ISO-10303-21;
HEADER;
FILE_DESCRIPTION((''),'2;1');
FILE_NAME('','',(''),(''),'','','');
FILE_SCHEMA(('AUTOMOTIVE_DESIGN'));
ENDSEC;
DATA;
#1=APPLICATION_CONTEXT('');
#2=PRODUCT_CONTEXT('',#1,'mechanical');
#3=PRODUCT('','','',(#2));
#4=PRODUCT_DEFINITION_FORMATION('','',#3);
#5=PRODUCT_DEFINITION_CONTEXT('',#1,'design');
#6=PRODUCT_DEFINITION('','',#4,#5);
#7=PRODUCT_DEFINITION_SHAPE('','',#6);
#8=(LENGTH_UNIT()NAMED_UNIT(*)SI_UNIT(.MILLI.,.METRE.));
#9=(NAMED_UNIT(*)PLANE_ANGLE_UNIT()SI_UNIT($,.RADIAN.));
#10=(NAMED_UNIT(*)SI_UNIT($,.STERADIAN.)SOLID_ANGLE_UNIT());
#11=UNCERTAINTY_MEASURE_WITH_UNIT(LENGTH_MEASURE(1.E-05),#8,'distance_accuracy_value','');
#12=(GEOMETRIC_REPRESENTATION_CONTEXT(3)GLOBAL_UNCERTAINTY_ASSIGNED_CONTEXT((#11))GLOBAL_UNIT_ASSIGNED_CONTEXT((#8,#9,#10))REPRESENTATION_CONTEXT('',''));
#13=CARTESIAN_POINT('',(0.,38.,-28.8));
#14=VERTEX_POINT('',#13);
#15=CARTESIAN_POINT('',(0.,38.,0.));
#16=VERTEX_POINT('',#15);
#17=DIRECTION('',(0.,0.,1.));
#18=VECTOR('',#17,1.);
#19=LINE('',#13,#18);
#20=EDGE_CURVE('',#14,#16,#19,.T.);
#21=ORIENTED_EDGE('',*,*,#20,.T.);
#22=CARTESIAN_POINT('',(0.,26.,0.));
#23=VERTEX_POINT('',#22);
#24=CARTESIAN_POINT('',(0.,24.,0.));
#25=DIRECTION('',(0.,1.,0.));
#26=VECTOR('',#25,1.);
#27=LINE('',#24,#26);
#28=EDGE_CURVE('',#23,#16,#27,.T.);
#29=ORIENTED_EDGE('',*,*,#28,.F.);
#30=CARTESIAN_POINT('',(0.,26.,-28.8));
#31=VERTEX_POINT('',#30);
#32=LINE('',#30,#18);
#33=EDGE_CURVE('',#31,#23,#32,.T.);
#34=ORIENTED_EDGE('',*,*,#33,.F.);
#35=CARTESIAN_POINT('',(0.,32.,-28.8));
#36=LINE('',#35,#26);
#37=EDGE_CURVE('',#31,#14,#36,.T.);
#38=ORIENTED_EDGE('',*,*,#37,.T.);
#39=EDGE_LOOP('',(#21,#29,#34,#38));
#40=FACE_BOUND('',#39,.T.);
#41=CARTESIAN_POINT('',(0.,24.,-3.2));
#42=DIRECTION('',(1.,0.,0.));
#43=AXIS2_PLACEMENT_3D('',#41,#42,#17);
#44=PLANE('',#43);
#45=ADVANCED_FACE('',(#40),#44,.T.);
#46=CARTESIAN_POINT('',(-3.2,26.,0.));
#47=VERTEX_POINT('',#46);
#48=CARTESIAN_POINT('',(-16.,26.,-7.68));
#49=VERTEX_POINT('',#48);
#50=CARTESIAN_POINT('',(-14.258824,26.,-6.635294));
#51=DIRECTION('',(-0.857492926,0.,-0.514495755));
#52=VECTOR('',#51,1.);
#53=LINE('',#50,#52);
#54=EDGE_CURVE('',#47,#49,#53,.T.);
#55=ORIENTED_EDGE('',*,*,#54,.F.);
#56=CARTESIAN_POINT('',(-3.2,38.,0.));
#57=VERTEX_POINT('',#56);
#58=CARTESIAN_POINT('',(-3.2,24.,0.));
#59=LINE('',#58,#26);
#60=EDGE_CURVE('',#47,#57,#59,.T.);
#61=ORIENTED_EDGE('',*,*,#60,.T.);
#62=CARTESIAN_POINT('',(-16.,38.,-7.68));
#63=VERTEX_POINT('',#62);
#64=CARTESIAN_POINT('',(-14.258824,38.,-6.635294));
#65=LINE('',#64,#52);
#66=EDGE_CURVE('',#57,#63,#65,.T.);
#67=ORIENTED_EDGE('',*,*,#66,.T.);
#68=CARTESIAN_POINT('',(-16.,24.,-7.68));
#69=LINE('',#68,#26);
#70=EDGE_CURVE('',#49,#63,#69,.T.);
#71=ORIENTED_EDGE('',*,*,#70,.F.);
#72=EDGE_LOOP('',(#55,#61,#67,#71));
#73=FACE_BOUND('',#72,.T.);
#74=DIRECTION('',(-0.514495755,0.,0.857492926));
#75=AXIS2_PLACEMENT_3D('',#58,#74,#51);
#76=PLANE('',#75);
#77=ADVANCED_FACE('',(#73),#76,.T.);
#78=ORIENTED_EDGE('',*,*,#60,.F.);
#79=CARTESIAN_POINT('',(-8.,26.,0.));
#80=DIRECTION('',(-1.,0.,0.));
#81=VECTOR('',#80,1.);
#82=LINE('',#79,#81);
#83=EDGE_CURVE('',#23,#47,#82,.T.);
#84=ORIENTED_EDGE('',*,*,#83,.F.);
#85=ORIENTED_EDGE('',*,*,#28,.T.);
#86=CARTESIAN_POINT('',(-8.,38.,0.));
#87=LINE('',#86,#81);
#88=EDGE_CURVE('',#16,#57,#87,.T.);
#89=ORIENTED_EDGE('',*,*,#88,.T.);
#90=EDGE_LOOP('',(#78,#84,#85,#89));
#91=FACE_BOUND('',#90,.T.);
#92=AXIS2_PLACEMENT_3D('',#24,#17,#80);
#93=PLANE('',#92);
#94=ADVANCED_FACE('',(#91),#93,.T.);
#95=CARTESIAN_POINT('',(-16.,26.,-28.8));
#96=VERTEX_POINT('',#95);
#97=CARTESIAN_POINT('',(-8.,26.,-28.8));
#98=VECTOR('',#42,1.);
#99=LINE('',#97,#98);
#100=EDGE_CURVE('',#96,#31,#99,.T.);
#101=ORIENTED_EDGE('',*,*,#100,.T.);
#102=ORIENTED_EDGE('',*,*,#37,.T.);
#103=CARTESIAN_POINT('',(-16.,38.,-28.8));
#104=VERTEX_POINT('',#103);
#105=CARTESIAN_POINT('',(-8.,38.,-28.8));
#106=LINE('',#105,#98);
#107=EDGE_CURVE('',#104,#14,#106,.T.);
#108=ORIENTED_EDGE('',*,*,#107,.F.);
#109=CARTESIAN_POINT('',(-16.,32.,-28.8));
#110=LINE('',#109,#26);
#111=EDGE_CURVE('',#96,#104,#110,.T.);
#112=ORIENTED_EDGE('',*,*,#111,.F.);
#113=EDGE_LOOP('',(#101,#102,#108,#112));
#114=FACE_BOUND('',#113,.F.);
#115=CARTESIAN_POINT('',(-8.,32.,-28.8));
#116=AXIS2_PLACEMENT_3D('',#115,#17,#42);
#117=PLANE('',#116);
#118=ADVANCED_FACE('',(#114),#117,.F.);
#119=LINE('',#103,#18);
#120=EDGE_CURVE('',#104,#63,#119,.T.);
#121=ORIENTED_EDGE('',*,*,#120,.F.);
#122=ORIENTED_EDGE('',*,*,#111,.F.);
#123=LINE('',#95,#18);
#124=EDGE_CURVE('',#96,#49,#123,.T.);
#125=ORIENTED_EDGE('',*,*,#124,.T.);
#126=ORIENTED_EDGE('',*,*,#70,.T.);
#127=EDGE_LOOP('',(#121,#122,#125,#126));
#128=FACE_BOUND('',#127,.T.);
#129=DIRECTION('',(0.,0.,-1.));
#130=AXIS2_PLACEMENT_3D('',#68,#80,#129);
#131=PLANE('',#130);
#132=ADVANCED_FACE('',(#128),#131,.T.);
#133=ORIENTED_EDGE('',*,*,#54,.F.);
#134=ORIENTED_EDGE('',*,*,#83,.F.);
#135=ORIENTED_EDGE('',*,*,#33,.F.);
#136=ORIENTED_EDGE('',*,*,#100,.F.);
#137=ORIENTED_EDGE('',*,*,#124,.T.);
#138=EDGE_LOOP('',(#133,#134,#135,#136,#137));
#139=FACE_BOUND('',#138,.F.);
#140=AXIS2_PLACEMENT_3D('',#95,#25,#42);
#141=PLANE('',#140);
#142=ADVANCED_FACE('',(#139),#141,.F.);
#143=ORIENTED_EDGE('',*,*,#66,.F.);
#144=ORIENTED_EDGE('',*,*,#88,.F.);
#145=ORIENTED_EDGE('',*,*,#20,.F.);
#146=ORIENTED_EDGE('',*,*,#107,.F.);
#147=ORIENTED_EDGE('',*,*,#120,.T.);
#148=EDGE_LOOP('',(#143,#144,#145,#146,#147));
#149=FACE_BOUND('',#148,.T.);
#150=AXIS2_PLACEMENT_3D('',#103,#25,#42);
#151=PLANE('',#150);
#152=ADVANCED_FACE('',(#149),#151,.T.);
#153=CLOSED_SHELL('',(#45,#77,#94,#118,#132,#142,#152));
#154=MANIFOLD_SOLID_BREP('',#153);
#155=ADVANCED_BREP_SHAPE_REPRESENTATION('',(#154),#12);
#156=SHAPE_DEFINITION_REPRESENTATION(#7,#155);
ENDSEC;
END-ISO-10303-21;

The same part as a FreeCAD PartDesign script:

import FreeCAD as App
import Part
import Sketcher


def add_polygon(sketch, points):
    """Adds a closed chain of lines whose ends are joined by coincident constraints."""
    first, n = sketch.GeometryCount, len(points)
    for a, b in zip(points, points[1:] + points[:1]):
        sketch.addGeometry(Part.LineSegment(App.Vector(*a, 0), App.Vector(*b, 0)), False)
    for i in range(n):
        sketch.addConstraint(Sketcher.Constraint("Coincident", first + i, 2, first + (i + 1) % n, 1))

doc = App.newDocument("Part")
body = doc.addObject("PartDesign::Body", "Body")

sketch1 = doc.addObject("Sketcher::SketchObject", "Sketch")
body.addObject(sketch1)
sketch1.AttachmentSupport = (doc.XY_Plane, [""])
sketch1.MapMode = "FlatFace"
sketch1.AttachmentOffset = App.Placement(App.Vector(0, 0, -28.8), App.Rotation())
add_polygon(sketch1, [(-16, 40), (-16, 24), (0, 24), (0, 40)])
sketch1.addConstraint([
    Sketcher.Constraint("Vertical", 0),
    Sketcher.Constraint("Horizontal", 1),
    Sketcher.Constraint("Vertical", 2),
    Sketcher.Constraint("Horizontal", 3),
    Sketcher.Constraint("PointOnObject", 1, 2, -2),
    Sketcher.Constraint("Equal", 3, 0),
    Sketcher.Constraint("DistanceX", 1, 1, 1, 2, 16.0),
    Sketcher.Constraint("DistanceY", -1, 1, 0, 2, 24.0),
])
pad1 = doc.addObject("PartDesign::Pad", "Pad")
body.addObject(pad1)
pad1.Profile = sketch1
pad1.Length = 28.8

sketch2 = doc.addObject("Sketcher::SketchObject", "Sketch001")
body.addObject(sketch2)
sketch2.AttachmentSupport = (doc.XZ_Plane, [""])
sketch2.MapMode = "FlatFace"
sketch2.AttachmentOffset = App.Placement(App.Vector(0, 0, -24), App.Rotation())
add_polygon(sketch2, [(-16, -10), (0, 0), (-16, 0)])
sketch2.addConstraint([
    Sketcher.Constraint("Horizontal", 1),
    Sketcher.Constraint("Vertical", 2),
    Sketcher.Constraint("Coincident", 0, 2, -1, 1),
    Sketcher.Constraint("DistanceX", 1, 2, 1, 1, 16.0),
    Sketcher.Constraint("DistanceY", 2, 2, 2, 1, 9.6),
])
pocket1 = doc.addObject("PartDesign::Pocket", "Pocket")
body.addObject(pocket1)
pocket1.Profile = sketch2
pocket1.Length = 16

sketch3 = doc.addObject("Sketcher::SketchObject", "Sketch002")
body.addObject(sketch3)
sketch3.AttachmentSupport = (doc.XZ_Plane, [""])
sketch3.MapMode = "FlatFace"
sketch3.AttachmentOffset = App.Placement(App.Vector(0, 0, -24), App.Rotation())
add_polygon(sketch3, [(0, 0), (-3.2, 0), (-16, -7.7), (-16, -10.9), (-3.2, -3.2), (0, -3.2)])
sketch3.addConstraint([
    Sketcher.Constraint("Horizontal", 0),
    Sketcher.Constraint("Vertical", 2),
    Sketcher.Constraint("Horizontal", 4),
    Sketcher.Constraint("Vertical", 5),
    Sketcher.Constraint("Coincident", 5, 2, -1, 1),
    Sketcher.Constraint("Parallel", 1, 3),
    Sketcher.Constraint("Vertical", 0, 2, 3, 2),
    Sketcher.Constraint("Equal", 4, 2),
    Sketcher.Constraint("DistanceX", 0, 2, 0, 1, 3.2),
    Sketcher.Constraint("DistanceX", 1, 2, -1, 1, 16.0),
    Sketcher.Constraint("DistanceY", 1, 2, -1, 1, 7.68),
])
pocket2 = doc.addObject("PartDesign::Pocket", "Pocket001")
body.addObject(pocket2)
pocket2.Profile = sketch3
pocket2.Length = 16

sketch4 = doc.addObject("Sketcher::SketchObject", "Sketch003")
body.addObject(sketch4)
sketch4.AttachmentSupport = (doc.XZ_Plane, [""])
sketch4.MapMode = "FlatFace"
sketch4.AttachmentOffset = App.Placement(App.Vector(0, 0, -24), App.Rotation())
add_polygon(sketch4, [(0, 0), (-3.2, 0), (-16, -7.7), (-16, -10.9), (-3.2, -3.2), (0, -3.2)])
sketch4.addConstraint([
    Sketcher.Constraint("Horizontal", 0),
    Sketcher.Constraint("Vertical", 2),
    Sketcher.Constraint("Horizontal", 4),
    Sketcher.Constraint("Vertical", 5),
    Sketcher.Constraint("Coincident", 5, 2, -1, 1),
    Sketcher.Constraint("Parallel", 1, 3),
    Sketcher.Constraint("Vertical", 0, 2, 3, 2),
    Sketcher.Constraint("Equal", 4, 2),
    Sketcher.Constraint("DistanceX", 0, 2, 0, 1, 3.2),
    Sketcher.Constraint("DistanceX", 1, 2, -1, 1, 16.0),
    Sketcher.Constraint("DistanceY", 1, 2, -1, 1, 7.68),
])
pad2 = doc.addObject("PartDesign::Pad", "Pad001")
body.addObject(pad2)
pad2.Profile = sketch4
pad2.Length = 16
pad2.Reversed = True

sketch5 = doc.addObject("Sketcher::SketchObject", "Sketch004")
body.addObject(sketch5)
sketch5.AttachmentSupport = (doc.XY_Plane, [""])
sketch5.MapMode = "FlatFace"
sketch5.AttachmentOffset = App.Placement(App.Vector(0, 0, -28.8), App.Rotation())
add_polygon(sketch5, [(-16, 24), (-16, 26), (0, 26), (0, 24)])
add_polygon(sketch5, [(-16, 38), (-16, 40), (0, 40), (0, 38)])
sketch5.addConstraint([
    Sketcher.Constraint("Vertical", 0),
    Sketcher.Constraint("Horizontal", 1),
    Sketcher.Constraint("Vertical", 2),
    Sketcher.Constraint("Horizontal", 3),
    Sketcher.Constraint("Vertical", 4),
    Sketcher.Constraint("Horizontal", 5),
    Sketcher.Constraint("Vertical", 6),
    Sketcher.Constraint("Horizontal", 7),
    Sketcher.Constraint("PointOnObject", 1, 2, -2),
    Sketcher.Constraint("PointOnObject", 5, 2, -2),
    Sketcher.Constraint("Vertical", 3, 2, 4, 2),
    Sketcher.Constraint("Equal", 2, 4),
    Sketcher.Constraint("DistanceX", 1, 1, 1, 2, 16.0),
    Sketcher.Constraint("DistanceY", 0, 1, 0, 2, 2.0),
    Sketcher.Constraint("DistanceY", -1, 1, 0, 2, 26.0),
    Sketcher.Constraint("DistanceY", -1, 1, 4, 2, 40.0),
])
pocket3 = doc.addObject("PartDesign::Pocket", "Pocket002")
body.addObject(pocket3)
pocket3.Profile = sketch5
pocket3.Length = 30
pocket3.Reversed = True

doc.recompute()
